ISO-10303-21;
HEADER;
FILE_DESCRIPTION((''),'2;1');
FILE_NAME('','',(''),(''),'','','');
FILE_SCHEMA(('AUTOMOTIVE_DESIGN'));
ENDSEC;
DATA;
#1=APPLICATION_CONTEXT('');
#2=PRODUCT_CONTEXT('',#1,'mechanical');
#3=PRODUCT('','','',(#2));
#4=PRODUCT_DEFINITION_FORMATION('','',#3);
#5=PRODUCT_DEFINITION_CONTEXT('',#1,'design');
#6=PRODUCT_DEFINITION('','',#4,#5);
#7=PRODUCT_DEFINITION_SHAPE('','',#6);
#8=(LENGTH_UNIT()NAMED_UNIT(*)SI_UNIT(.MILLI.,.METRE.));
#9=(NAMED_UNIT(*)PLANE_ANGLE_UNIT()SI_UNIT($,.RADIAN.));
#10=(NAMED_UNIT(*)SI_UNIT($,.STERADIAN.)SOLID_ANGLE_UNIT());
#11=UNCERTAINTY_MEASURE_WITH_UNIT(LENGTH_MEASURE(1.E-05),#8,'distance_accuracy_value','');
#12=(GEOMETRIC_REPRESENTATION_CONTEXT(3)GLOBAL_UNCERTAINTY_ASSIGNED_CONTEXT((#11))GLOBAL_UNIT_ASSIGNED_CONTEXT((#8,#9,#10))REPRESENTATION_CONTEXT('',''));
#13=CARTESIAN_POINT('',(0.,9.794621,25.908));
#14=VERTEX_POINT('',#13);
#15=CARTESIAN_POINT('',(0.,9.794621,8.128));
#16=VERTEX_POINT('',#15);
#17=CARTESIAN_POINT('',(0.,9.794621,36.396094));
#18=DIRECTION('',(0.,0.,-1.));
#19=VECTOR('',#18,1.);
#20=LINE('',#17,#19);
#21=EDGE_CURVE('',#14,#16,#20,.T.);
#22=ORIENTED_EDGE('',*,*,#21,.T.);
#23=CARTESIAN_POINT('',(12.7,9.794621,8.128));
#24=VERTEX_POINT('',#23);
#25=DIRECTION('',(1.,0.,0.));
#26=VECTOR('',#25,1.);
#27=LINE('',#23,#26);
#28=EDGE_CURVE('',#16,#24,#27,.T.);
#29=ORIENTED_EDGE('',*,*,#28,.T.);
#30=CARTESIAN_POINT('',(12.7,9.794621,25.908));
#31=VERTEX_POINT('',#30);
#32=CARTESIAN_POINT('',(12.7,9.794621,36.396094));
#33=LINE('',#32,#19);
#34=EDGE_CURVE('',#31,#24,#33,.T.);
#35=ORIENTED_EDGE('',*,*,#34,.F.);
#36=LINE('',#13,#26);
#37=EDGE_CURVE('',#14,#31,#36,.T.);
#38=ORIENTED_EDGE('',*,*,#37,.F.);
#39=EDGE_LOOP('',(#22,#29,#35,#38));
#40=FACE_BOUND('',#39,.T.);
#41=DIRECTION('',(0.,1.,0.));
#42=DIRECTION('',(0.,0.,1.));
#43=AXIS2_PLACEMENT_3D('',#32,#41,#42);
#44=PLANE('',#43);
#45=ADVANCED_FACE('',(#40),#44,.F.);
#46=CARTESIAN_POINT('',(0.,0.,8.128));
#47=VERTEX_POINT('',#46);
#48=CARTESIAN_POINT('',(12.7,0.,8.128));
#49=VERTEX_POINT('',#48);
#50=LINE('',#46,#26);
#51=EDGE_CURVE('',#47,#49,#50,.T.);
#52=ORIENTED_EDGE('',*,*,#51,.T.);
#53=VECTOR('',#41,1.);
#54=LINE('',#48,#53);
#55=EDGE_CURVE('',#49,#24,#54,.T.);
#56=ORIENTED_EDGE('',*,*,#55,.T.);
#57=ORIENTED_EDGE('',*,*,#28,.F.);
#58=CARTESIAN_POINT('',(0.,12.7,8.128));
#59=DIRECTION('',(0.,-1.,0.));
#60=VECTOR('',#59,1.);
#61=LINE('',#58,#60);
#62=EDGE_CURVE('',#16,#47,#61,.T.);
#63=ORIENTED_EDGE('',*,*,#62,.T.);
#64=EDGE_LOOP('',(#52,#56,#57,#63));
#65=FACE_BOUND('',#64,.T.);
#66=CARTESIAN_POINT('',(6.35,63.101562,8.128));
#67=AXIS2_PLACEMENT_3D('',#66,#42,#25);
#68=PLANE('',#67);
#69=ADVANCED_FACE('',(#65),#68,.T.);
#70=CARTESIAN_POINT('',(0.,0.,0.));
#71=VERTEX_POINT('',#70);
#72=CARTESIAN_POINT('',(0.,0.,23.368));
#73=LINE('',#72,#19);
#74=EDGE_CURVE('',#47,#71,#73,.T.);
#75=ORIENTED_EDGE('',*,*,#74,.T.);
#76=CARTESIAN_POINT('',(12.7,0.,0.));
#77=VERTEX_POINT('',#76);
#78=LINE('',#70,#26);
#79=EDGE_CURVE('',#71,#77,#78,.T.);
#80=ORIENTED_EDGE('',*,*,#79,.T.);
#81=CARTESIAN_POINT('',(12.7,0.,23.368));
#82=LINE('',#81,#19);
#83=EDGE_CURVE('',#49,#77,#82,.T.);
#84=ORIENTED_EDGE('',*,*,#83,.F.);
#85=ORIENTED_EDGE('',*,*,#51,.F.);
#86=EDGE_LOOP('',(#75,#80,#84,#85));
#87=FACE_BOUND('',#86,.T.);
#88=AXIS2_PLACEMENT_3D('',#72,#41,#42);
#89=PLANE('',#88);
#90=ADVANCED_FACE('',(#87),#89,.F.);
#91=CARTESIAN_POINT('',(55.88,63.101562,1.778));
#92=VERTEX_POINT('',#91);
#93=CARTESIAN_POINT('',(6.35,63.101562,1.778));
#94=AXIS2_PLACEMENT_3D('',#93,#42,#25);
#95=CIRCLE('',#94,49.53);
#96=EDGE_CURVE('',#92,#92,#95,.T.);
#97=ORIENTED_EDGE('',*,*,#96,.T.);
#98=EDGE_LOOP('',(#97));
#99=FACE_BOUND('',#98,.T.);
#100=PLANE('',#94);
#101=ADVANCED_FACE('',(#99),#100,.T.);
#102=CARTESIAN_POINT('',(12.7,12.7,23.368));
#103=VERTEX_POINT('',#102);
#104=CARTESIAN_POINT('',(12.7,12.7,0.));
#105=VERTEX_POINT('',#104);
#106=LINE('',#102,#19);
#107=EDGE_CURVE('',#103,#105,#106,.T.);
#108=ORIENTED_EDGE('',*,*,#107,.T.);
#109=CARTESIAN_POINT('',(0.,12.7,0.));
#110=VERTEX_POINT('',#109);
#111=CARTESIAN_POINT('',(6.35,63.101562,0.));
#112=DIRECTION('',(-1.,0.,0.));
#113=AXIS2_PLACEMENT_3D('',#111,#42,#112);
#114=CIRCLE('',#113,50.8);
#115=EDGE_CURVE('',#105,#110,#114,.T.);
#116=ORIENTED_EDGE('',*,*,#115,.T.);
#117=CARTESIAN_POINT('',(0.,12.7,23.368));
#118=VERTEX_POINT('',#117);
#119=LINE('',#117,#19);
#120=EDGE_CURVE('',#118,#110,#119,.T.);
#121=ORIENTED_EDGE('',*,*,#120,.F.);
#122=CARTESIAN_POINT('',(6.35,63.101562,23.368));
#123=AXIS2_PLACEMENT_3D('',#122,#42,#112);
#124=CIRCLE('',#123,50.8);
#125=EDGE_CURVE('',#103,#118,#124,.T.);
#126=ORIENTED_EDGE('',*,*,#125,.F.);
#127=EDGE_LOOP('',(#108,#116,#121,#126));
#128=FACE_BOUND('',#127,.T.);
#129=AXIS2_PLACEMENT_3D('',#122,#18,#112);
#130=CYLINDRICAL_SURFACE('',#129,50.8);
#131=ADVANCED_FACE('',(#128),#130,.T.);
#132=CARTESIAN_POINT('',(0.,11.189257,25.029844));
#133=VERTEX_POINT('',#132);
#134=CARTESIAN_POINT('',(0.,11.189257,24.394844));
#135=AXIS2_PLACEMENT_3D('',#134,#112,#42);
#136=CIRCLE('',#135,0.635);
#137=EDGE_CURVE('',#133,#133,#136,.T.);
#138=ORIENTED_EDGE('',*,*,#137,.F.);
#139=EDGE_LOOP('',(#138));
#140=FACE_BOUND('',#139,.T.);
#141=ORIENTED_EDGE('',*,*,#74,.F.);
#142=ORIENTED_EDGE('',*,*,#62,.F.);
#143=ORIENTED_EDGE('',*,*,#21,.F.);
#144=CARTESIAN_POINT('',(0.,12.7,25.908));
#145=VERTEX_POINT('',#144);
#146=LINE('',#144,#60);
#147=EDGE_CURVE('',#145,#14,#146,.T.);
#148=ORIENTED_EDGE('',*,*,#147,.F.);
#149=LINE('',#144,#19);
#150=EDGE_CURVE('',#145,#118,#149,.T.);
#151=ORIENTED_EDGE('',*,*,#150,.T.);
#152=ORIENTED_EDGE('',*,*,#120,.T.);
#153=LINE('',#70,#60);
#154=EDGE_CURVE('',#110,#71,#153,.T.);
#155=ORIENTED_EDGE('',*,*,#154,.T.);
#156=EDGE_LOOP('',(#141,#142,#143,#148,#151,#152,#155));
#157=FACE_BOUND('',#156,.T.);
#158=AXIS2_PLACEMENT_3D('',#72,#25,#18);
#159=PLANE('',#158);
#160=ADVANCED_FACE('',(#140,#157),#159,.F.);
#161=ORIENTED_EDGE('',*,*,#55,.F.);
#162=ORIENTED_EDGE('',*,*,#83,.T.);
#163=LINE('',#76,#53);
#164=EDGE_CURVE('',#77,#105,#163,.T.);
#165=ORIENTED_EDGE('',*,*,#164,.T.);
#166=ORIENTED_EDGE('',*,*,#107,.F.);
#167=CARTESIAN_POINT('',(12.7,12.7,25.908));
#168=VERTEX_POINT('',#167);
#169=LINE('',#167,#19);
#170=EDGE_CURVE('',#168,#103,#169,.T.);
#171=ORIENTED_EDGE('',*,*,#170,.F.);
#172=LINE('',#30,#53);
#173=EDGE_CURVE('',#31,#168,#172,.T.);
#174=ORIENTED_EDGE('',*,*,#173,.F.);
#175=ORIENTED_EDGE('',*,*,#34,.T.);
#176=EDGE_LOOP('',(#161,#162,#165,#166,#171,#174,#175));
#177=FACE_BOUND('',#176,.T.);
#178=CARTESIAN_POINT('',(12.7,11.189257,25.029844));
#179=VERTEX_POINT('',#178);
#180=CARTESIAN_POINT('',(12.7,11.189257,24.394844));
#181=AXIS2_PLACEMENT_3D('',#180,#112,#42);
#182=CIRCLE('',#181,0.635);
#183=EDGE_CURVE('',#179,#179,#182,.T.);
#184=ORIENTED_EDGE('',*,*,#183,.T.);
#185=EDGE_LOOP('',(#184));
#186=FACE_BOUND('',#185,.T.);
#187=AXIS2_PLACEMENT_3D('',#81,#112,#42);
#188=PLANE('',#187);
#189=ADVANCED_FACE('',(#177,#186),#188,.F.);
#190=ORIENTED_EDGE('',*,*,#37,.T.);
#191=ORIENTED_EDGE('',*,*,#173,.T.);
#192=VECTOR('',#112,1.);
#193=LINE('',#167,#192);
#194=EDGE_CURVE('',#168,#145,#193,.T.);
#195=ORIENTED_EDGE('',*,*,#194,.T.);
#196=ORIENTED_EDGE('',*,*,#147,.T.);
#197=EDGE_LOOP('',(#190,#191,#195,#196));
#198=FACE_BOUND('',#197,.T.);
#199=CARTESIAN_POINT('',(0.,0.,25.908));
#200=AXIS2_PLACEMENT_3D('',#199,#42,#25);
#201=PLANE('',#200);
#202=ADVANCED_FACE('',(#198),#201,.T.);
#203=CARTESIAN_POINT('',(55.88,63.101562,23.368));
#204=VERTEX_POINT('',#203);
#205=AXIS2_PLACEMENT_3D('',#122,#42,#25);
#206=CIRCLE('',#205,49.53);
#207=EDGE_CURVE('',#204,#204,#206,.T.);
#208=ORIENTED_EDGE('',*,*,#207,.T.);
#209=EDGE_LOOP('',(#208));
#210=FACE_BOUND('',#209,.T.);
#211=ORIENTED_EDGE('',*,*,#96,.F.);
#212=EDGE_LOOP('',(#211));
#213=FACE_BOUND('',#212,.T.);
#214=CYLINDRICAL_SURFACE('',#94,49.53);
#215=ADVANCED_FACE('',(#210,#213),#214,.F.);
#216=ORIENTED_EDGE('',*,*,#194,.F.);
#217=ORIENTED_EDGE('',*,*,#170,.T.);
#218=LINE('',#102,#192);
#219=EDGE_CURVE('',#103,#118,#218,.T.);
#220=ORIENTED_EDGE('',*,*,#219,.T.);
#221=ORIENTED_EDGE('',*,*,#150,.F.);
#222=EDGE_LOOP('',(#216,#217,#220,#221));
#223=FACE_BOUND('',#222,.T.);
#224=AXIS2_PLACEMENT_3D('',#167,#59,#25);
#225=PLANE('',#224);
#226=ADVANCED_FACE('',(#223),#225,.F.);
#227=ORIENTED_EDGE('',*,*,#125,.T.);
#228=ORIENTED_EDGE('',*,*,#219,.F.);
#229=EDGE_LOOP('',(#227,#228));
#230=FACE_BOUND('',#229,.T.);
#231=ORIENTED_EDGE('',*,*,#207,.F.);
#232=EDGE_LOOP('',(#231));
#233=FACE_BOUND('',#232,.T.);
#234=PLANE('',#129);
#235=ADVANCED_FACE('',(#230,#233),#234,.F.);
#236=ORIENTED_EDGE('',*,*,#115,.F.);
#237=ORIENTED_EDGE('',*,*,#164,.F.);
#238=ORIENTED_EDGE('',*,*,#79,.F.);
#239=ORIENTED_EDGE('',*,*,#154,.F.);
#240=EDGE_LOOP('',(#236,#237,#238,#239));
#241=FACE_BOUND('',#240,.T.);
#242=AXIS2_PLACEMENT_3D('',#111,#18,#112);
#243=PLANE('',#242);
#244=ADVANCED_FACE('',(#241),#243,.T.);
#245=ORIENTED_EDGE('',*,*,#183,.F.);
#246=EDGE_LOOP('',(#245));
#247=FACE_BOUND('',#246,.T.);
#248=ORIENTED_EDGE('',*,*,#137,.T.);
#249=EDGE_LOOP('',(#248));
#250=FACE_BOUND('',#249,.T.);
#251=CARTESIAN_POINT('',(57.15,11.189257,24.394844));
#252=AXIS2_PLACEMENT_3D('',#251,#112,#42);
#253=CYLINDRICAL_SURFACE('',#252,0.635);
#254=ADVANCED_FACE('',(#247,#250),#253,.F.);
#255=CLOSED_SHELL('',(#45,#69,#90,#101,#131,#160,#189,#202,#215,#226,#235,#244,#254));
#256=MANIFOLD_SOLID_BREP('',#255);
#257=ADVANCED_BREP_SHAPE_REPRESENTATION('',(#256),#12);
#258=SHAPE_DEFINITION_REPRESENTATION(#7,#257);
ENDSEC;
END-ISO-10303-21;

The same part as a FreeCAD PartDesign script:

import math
import FreeCAD as App
import Part
import Sketcher
from FreeCAD import Vector
Q = App.Units.Quantity


def add_polygon(sketch, points):
    """Adds a closed chain of lines whose ends are joined by coincident constraints."""
    first, n = sketch.GeometryCount, len(points)
    for a, b in zip(points, points[1:] + points[:1]):
        sketch.addGeometry(Part.LineSegment(App.Vector(*a, 0), App.Vector(*b, 0)), False)
    for i in range(n):
        sketch.addConstraint(Sketcher.Constraint("Coincident", first + i, 2, first + (i + 1) % n, 1))

doc = App.newDocument("Part")
body = doc.addObject("PartDesign::Body", "Body")

sketch1 = doc.addObject("Sketcher::SketchObject", "Sketch")
body.addObject(sketch1)
sketch1.AttachmentSupport = (doc.XY_Plane, [""])
sketch1.MapMode = "FlatFace"
sketch1.addGeometry([
    Part.LineSegment(Vector(0, 0, 0), Vector(13, 0, 0)),
    Part.LineSegment(Vector(13, 0, 0), Vector(13, 13, 0)),
    Part.ArcOfCircle(Part.Circle(Vector(6, 63, 0), Vector(0, 0, 1), 51), math.radians(-83), math.radians(263)),
    Part.LineSegment(Vector(0, 13, 0), Vector(0, 0, 0)),
], False)
sketch1.addConstraint([
    Sketcher.Constraint("Coincident", 0, 2, 1, 1),
    Sketcher.Constraint("Coincident", 1, 2, 2, 1),
    Sketcher.Constraint("Coincident", 2, 2, 3, 1),
    Sketcher.Constraint("Coincident", 3, 2, 0, 1),
    Sketcher.Constraint("Horizontal", 0),
    Sketcher.Constraint("Vertical", 1),
    Sketcher.Constraint("Vertical", 3),
    Sketcher.Constraint("Coincident", 3, 2, -1, 1),
    Sketcher.Constraint("Horizontal", 1, 2, 2, 2),
    Sketcher.Constraint("Equal", 0, 1),
    Sketcher.Constraint("Radius", 2, Q("2 in")),
    Sketcher.Constraint("DistanceX", 0, 1, 0, 2, Q("0.5 in")),
])
pad1 = doc.addObject("PartDesign::Pad", "Pad")
body.addObject(pad1)
pad1.Profile = sketch1
pad1.Length = Q("0.92 in")

sketch2 = doc.addObject("Sketcher::SketchObject", "Sketch001")
body.addObject(sketch2)
sketch2.AttachmentSupport = (doc.XY_Plane, [""])
sketch2.MapMode = "FlatFace"
sketch2.AttachmentOffset = App.Placement(Vector(0, 0, 0.92 * 25.4), App.Rotation())
sketch2.addGeometry(Part.Circle(Vector(6, 63, 0), Vector(0, 0, 1), 50), False)
sketch2.addConstraint([
    Sketcher.Constraint("Diameter", 0, Q("3.9 in")),
    Sketcher.Constraint("DistanceX", -1, 1, 0, 3, Q("0.25 in")),
    Sketcher.Constraint("DistanceY", -1, 1, 0, 3, 63.101562),
])
pocket1 = doc.addObject("PartDesign::Pocket", "Pocket")
body.addObject(pocket1)
pocket1.Profile = sketch2
pocket1.Length = Q("0.85 in")

sketch3 = doc.addObject("Sketcher::SketchObject", "Sketch002")
body.addObject(sketch3)
sketch3.AttachmentSupport = (doc.XY_Plane, [""])
sketch3.MapMode = "FlatFace"
sketch3.AttachmentOffset = App.Placement(Vector(0, 0, 0.32 * 25.4), App.Rotation())
sketch3.addGeometry([
    Part.LineSegment(Vector(0, 0, 0), Vector(13, 0, 0)),
    Part.LineSegment(Vector(13, 0, 0), Vector(13, 13, 0)),
    Part.ArcOfCircle(Part.Circle(Vector(6, 63, 0), Vector(0, 0, 1), 51), math.radians(-97.18), math.radians(-82.82)),
    Part.LineSegment(Vector(0, 13, 0), Vector(0, 0, 0)),
], False)
sketch3.addConstraint([
    Sketcher.Constraint("Coincident", 0, 2, 1, 1),
    Sketcher.Constraint("Coincident", 1, 2, 2, 2),
    Sketcher.Constraint("Coincident", 2, 1, 3, 1),
    Sketcher.Constraint("Coincident", 3, 2, 0, 1),
    Sketcher.Constraint("Horizontal", 0),
    Sketcher.Constraint("Vertical", 1),
    Sketcher.Constraint("Vertical", 3),
    Sketcher.Constraint("Coincident", 3, 2, -1, 1),
    Sketcher.Constraint("Horizontal", 1, 2, 2, 1),
    Sketcher.Constraint("Equal", 0, 1),
    Sketcher.Constraint("Radius", 2, Q("2 in")),
    Sketcher.Constraint("DistanceX", 0, 1, 0, 2, Q("0.5 in")),
])
pocket2 = doc.addObject("PartDesign::Pocket", "Pocket001")
body.addObject(pocket2)
pocket2.Profile = sketch3
pocket2.Length = Q("0.6 in")
pocket2.Reversed = True

sketch4 = doc.addObject("Sketcher::SketchObject", "Sketch003")
body.addObject(sketch4)
sketch4.AttachmentSupport = (doc.XY_Plane, [""])
sketch4.MapMode = "FlatFace"
sketch4.AttachmentOffset = App.Placement(Vector(0, 0, 0.32 * 25.4), App.Rotation())
sketch4.addGeometry([
    Part.LineSegment(Vector(0, 9.8, 0), Vector(12.7, 9.8, 0)),
    Part.LineSegment(Vector(12.7, 9.8, 0), Vector(12.7, 12.7, 0)),
    Part.ArcOfCircle(Part.Circle(Vector(6.3, 63.1, 0), Vector(0, 0, 1), 50.8), math.radians(-97.18), math.radians(-82.82)),
    Part.LineSegment(Vector(0, 12.7, 0), Vector(0, 9.8, 0)),
], False)
sketch4.addConstraint([
    Sketcher.Constraint("Coincident", 0, 2, 1, 1),
    Sketcher.Constraint("Coincident", 1, 2, 2, 2),
    Sketcher.Constraint("Coincident", 2, 1, 3, 1),
    Sketcher.Constraint("Coincident", 3, 2, 0, 1),
    Sketcher.Constraint("Horizontal", 0),
    Sketcher.Constraint("Vertical", 1),
    Sketcher.Constraint("Vertical", 3),
    Sketcher.Constraint("PointOnObject", 2, 1, -2),
    Sketcher.Constraint("Horizontal", 1, 2, 2, 1),
    Sketcher.Constraint("Radius", 2, Q("2 in")),
    Sketcher.Constraint("DistanceX", 0, 1, 0, 2, Q("0.5 in")),
    Sketcher.Constraint("DistanceY", -1, 1, 1, 2, Q("0.5 in")),
    Sketcher.Constraint("DistanceY", 1, 1, 1, 2, 2.905379),
])
pad2 = doc.addObject("PartDesign::Pad", "Pad001")
body.addObject(pad2)
pad2.Profile = sketch4
pad2.Length = Q("0.6 in")

sketch5 = doc.addObject("Sketcher::SketchObject", "Sketch004")
body.addObject(sketch5)
sketch5.AttachmentSupport = (doc.XY_Plane, [""])
sketch5.MapMode = "FlatFace"
sketch5.AttachmentOffset = App.Placement(Vector(0, 0, 0.92 * 25.4), App.Rotation())
add_polygon(sketch5, [(0, 12.7), (0, 9.8), (12.7, 9.8), (12.7, 12.7)])
sketch5.addConstraint([
    Sketcher.Constraint("Vertical", 0),
    Sketcher.Constraint("Horizontal", 1),
    Sketcher.Constraint("Vertical", 2),
    Sketcher.Constraint("Horizontal", 3),
    Sketcher.Constraint("PointOnObject", 0, 2, -2),
    Sketcher.Constraint("DistanceX", 1, 1, 1, 2, Q("0.5 in")),
    Sketcher.Constraint("DistanceY", -1, 1, 2, 2, Q("0.5 in")),
    Sketcher.Constraint("DistanceY", 0, 2, 0, 1, 2.905379),
])
pad3 = doc.addObject("PartDesign::Pad", "Pad002")
body.addObject(pad3)
pad3.Profile = sketch5
pad3.Length = Q("0.1 in")

sketch6 = doc.addObject("Sketcher::SketchObject", "Sketch005")
body.addObject(sketch6)
sketch6.AttachmentSupport = (doc.YZ_Plane, [""])
sketch6.MapMode = "FlatFace"
sketch6.addGeometry(Part.Circle(Vector(11.2, 24.4, 0), Vector(0, 0, 1), 0.6), False)
sketch6.addConstraint([
    Sketcher.Constraint("Diameter", 0, Q("0.05 in")),
    Sketcher.Constraint("DistanceX", -1, 1, 0, 3, 11.189257),
    Sketcher.Constraint("DistanceY", -1, 1, 0, 3, 24.394844),
])
pocket3 = doc.addObject("PartDesign::Pocket", "Pocket002")
body.addObject(pocket3)
pocket3.Profile = sketch6
pocket3.Type = "ThroughAll"
pocket3.Reversed = True

doc.recompute()
